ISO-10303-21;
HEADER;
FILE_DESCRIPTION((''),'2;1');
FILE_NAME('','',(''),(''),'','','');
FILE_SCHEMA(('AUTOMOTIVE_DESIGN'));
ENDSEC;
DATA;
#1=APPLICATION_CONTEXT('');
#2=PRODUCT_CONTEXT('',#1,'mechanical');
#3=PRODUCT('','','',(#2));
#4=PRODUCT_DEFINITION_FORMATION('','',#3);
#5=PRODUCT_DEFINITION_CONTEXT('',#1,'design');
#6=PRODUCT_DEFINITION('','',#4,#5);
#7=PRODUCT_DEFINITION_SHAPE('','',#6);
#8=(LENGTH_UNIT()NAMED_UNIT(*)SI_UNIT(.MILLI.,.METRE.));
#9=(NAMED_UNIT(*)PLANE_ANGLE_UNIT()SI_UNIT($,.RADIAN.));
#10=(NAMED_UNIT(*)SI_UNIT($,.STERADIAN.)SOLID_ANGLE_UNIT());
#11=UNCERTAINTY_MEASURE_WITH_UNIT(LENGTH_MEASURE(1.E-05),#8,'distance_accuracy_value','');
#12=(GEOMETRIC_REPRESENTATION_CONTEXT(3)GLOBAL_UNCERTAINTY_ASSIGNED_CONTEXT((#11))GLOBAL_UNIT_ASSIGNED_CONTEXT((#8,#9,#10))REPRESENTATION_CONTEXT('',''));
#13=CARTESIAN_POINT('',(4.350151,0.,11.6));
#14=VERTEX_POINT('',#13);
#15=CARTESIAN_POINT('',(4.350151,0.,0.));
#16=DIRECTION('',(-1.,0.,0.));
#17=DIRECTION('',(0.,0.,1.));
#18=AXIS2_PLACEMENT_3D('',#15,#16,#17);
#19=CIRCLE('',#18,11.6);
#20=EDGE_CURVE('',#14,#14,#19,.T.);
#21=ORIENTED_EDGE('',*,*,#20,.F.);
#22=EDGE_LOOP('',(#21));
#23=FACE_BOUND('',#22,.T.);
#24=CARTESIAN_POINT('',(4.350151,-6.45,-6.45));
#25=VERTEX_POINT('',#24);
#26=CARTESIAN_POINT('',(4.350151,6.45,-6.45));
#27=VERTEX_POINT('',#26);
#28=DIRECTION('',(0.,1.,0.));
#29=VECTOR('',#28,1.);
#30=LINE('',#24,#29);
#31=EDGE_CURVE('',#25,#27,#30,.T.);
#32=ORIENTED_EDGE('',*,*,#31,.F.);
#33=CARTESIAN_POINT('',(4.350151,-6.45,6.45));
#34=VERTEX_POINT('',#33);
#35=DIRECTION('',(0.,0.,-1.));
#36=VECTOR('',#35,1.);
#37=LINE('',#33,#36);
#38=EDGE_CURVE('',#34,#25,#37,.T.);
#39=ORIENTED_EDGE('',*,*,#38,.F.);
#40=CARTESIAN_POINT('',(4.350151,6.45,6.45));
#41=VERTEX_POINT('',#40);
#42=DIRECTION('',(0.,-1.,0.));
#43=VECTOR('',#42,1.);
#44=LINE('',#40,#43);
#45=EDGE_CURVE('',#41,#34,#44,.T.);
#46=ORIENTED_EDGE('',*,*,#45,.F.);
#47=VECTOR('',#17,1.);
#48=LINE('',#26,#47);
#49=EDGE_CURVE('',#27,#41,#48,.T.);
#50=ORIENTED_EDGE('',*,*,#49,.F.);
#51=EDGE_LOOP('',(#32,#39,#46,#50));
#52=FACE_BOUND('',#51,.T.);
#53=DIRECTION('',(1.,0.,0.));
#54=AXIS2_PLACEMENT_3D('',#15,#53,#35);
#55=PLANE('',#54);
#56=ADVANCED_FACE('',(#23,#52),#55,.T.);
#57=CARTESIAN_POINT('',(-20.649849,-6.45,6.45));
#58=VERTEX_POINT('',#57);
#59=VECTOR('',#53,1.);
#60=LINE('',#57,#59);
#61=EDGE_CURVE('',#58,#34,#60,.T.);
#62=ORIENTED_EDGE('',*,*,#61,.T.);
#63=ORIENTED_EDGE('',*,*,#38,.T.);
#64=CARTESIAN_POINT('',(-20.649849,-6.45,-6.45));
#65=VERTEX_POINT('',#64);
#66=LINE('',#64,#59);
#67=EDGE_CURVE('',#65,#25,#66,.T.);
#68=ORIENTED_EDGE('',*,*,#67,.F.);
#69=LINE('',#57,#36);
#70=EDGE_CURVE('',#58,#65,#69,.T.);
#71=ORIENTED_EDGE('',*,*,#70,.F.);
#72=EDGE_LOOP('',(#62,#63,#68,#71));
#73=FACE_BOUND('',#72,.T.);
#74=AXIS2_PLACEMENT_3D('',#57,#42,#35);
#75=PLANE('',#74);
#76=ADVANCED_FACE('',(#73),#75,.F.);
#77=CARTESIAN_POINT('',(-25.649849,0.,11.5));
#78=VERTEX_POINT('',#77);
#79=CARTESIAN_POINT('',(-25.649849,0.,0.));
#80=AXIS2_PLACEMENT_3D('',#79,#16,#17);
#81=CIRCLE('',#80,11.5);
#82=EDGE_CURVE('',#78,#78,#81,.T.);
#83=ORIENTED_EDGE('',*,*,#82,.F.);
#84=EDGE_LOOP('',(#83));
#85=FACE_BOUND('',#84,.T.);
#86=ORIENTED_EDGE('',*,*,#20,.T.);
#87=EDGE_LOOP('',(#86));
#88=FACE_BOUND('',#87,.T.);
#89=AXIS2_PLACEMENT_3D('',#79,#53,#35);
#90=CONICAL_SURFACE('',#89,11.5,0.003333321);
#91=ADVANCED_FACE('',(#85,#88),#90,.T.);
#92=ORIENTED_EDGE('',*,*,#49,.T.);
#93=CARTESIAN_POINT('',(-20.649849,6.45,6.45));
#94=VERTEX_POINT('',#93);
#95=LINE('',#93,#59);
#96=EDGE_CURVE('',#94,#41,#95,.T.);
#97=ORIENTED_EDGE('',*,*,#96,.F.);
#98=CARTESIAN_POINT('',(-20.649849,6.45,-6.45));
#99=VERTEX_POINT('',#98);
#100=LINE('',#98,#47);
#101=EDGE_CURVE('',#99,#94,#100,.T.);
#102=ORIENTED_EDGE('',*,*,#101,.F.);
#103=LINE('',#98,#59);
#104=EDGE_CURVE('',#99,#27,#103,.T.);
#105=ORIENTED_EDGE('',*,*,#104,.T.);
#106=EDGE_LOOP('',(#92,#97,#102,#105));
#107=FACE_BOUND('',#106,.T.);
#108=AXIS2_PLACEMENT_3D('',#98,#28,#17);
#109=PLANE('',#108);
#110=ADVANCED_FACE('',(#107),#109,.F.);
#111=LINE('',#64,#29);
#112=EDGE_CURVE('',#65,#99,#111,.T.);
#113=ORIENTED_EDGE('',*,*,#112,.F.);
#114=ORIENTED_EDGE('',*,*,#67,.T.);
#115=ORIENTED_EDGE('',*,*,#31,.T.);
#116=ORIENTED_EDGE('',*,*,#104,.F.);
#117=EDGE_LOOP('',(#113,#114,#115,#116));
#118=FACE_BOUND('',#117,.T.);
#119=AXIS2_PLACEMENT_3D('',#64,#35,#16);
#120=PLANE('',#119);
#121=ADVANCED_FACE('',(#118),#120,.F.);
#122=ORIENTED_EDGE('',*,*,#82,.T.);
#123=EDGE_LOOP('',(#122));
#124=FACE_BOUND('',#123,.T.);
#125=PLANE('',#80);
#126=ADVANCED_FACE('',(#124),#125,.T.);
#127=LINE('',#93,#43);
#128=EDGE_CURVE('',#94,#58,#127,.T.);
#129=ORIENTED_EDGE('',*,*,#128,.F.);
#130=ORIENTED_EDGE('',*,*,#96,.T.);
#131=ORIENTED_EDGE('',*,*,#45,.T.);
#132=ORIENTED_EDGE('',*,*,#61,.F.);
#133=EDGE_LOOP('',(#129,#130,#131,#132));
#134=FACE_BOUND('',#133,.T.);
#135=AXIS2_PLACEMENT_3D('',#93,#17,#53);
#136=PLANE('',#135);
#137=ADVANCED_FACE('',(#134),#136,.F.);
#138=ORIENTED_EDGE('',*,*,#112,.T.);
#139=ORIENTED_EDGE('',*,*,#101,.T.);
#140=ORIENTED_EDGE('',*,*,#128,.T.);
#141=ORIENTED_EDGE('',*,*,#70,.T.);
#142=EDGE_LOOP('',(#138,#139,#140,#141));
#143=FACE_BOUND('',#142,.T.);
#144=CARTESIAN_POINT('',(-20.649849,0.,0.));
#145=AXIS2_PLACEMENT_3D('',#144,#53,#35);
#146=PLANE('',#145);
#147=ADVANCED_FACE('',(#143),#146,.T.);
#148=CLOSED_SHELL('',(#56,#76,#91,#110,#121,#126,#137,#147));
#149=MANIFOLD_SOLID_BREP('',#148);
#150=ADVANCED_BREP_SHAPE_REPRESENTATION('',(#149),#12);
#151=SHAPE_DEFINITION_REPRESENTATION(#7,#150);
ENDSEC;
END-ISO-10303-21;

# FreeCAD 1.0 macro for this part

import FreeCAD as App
import Part
import Sketcher

doc = App.newDocument("Part")
body = doc.addObject("PartDesign::Body", "Body")

# Sketch on XY plane
sketch1 = body.newObject("Sketcher::SketchObject", "Sketch")
sketch1.AttachmentSupport = (doc.getObject("XY_Plane"), [""])
sketch1.MapMode = "FlatFace"
sketch1.addGeometry([
    Part.LineSegment(App.Vector(-25.649849, 0, 0), App.Vector(-25.649849, -11.5, 0)),
    Part.LineSegment(App.Vector(-25.649849, -11.5, 0), App.Vector(4.350151, -11.6, 0)),
    Part.LineSegment(App.Vector(4.350151, -11.6, 0), App.Vector(4.350151, 0, 0)),
    Part.LineSegment(App.Vector(4.350151, 0, 0), App.Vector(-25.649849, 0, 0)),
], False)
sketch1.addConstraint([
    Sketcher.Constraint("Coincident", 0, 2, 1, 1),
    Sketcher.Constraint("Coincident", 1, 2, 2, 1),
    Sketcher.Constraint("Coincident", 2, 2, 3, 1),
    Sketcher.Constraint("Coincident", 3, 2, 0, 1),
    Sketcher.Constraint("Vertical", 0),
    Sketcher.Constraint("Vertical", 2),
    Sketcher.Constraint("Horizontal", 3),
    Sketcher.Constraint("PointOnObject", 2, 2, -1),
    Sketcher.Constraint("DistanceX", 3, 2, 3, 1, 30.0),
    Sketcher.Constraint("DistanceY", 0, 2, 0, 1, 11.5),
    Sketcher.Constraint("DistanceY", 2, 1, 2, 2, 11.6),
    Sketcher.Constraint("DistanceX", 0, 2, -1, 1, 25.649849),
])
revolution = body.newObject("PartDesign::Revolution", "Revolution")
revolution.Profile = sketch1
revolution.ReferenceAxis = (sketch1, ["H_Axis"])
revolution.Angle = 360

# Sketch on YZ plane
sketch2 = body.newObject("Sketcher::SketchObject", "Sketch001")
sketch2.AttachmentSupport = (doc.getObject("YZ_Plane"), [""])
sketch2.MapMode = "FlatFace"
sketch2.AttachmentOffset = App.Placement(App.Vector(0, 0, 4.350151), App.Rotation())
sketch2.addGeometry([
    Part.LineSegment(App.Vector(6.45, 6.45, 0), App.Vector(-6.45, 6.45, 0)),
    Part.LineSegment(App.Vector(-6.45, 6.45, 0), App.Vector(-6.45, -6.45, 0)),
    Part.LineSegment(App.Vector(-6.45, -6.45, 0), App.Vector(6.45, -6.45, 0)),
    Part.LineSegment(App.Vector(6.45, -6.45, 0), App.Vector(6.45, 6.45, 0)),
], False)
sketch2.addConstraint([
    Sketcher.Constraint("Coincident", 0, 2, 1, 1),
    Sketcher.Constraint("Coincident", 1, 2, 2, 1),
    Sketcher.Constraint("Coincident", 2, 2, 3, 1),
    Sketcher.Constraint("Coincident", 3, 2, 0, 1),
    Sketcher.Constraint("Horizontal", 0),
    Sketcher.Constraint("Vertical", 1),
    Sketcher.Constraint("Horizontal", 2),
    Sketcher.Constraint("Vertical", 3),
    Sketcher.Constraint("Symmetric", 0, 2, 2, 2, -1, 1),
    Sketcher.Constraint("Equal", 2, 1),
    Sketcher.Constraint("DistanceX", 0, 2, 0, 1, 12.9),
])
pocket1 = body.newObject("PartDesign::Pocket", "Pocket")
pocket1.Profile = sketch2
pocket1.Length = 25

doc.recompute()
